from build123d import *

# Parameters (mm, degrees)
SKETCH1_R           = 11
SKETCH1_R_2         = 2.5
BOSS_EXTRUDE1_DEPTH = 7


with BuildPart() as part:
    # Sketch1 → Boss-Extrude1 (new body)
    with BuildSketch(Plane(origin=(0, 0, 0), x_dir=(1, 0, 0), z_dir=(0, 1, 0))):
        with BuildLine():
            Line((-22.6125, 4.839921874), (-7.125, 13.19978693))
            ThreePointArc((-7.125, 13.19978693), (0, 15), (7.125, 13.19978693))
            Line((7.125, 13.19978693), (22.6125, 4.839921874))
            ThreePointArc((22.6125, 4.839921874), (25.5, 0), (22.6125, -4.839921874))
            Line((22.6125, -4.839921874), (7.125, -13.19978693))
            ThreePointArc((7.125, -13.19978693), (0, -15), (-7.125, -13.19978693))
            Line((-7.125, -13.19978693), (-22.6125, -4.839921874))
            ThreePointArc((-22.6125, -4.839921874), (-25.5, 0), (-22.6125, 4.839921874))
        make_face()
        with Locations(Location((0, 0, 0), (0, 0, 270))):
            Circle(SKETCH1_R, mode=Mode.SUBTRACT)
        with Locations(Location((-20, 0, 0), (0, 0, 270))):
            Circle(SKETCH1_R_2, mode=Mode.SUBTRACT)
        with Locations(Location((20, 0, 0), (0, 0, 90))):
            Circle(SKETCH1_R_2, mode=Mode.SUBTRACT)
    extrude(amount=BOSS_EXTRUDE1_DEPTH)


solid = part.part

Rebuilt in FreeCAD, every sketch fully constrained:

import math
import FreeCAD as App
import Part
import Sketcher

doc = App.newDocument("Part")
body = doc.addObject("PartDesign::Body", "Body")

# Sketch on XZ plane
sketch1 = body.newObject("Sketcher::SketchObject", "Sketch")
sketch1.AttachmentSupport = (doc.getObject("XZ_Plane"), [""])
sketch1.MapMode = "FlatFace"
sketch1.addGeometry(Part.LineSegment(App.Vector(-7.1, -13.2, 0), App.Vector(-22.6, -4.8, 0)), False)
sketch1.addGeometry(Part.ArcOfCircle(Part.Circle(App.Vector(-20, 0, 0), App.Vector(0, 0, 1), 5.5), math.radians(118), math.radians(242)), False)
sketch1.addGeometry(Part.LineSegment(App.Vector(-22.6, 4.8, 0), App.Vector(-7.1, 13.2, 0)), False)
sketch1.addGeometry(Part.ArcOfCircle(Part.Circle(App.Vector(0, 0, 0), App.Vector(0, 0, 1), 15), math.radians(62), math.radians(118)), False)
sketch1.addGeometry(Part.LineSegment(App.Vector(7.1, 13.2, 0), App.Vector(22.6, 4.8, 0)), False)
sketch1.addGeometry(Part.ArcOfCircle(Part.Circle(App.Vector(20, 0, 0), App.Vector(0, 0, 1), 5.5), math.radians(-62), math.radians(62)), False)
sketch1.addGeometry(Part.LineSegment(App.Vector(22.6, -4.8, 0), App.Vector(7.1, -13.2, 0)), False)
sketch1.addGeometry(Part.ArcOfCircle(Part.Circle(App.Vector(0, 0, 0), App.Vector(0, 0, 1), 15), math.radians(-118), math.radians(-62)), False)
sketch1.addGeometry(Part.Circle(App.Vector(20, 0, 0), App.Vector(0, 0, 1), 2.5), False)
sketch1.addGeometry(Part.Circle(App.Vector(0, 0, 0), App.Vector(0, 0, 1), 11), False)
sketch1.addGeometry(Part.Circle(App.Vector(-20, 0, 0), App.Vector(0, 0, 1), 2.5), False)
sketch1.addConstraint(Sketcher.Constraint("Tangent", 0, 2, 1, 2))
sketch1.addConstraint(Sketcher.Constraint("Tangent", 1, 1, 2, 1))
sketch1.addConstraint(Sketcher.Constraint("Tangent", 2, 2, 3, 2))
sketch1.addConstraint(Sketcher.Constraint("Tangent", 3, 1, 4, 1))
sketch1.addConstraint(Sketcher.Constraint("Tangent", 4, 2, 5, 2))
sketch1.addConstraint(Sketcher.Constraint("Tangent", 5, 1, 6, 1))
sketch1.addConstraint(Sketcher.Constraint("Tangent", 6, 2, 7, 2))
sketch1.addConstraint(Sketcher.Constraint("Tangent", 7, 1, 0, 1))
sketch1.addConstraint(Sketcher.Constraint("Coincident", 3, 3, -1, 1))
sketch1.addConstraint(Sketcher.Constraint("Coincident", 7, 3, -1, 1))
sketch1.addConstraint(Sketcher.Constraint("Coincident", 9, 3, -1, 1))
sketch1.addConstraint(Sketcher.Constraint("Coincident", 8, 3, 5, 3))
sketch1.addConstraint(Sketcher.Constraint("Coincident", 10, 3, 1, 3))
sketch1.addConstraint(Sketcher.Constraint("Equal", 1, 5))
sketch1.addConstraint(Sketcher.Constraint("Equal", 3, 7))
sketch1.addConstraint(Sketcher.Constraint("Equal", 8, 10))
sketch1.addConstraint(Sketcher.Constraint("Symmetric", 1, 3, 5, 3, -1, 1))
sketch1.addConstraint(Sketcher.Constraint("PointOnObject", 1, 3, -1))
sketch1.addConstraint(Sketcher.Constraint("Diameter", 8, 5.0))
sketch1.addConstraint(Sketcher.Constraint("Diameter", 9, 22.0))
sketch1.addConstraint(Sketcher.Constraint("Radius", 3, 15.0))
sketch1.addConstraint(Sketcher.Constraint("Radius", 1, 5.5))
sketch1.addConstraint(Sketcher.Constraint("DistanceX", 1, 3, -1, 1, 20.0))
pad1 = body.newObject("PartDesign::Pad", "Pad")
pad1.Profile = sketch1
pad1.Length = 7
pad1.Reversed = True

doc.recompute()
